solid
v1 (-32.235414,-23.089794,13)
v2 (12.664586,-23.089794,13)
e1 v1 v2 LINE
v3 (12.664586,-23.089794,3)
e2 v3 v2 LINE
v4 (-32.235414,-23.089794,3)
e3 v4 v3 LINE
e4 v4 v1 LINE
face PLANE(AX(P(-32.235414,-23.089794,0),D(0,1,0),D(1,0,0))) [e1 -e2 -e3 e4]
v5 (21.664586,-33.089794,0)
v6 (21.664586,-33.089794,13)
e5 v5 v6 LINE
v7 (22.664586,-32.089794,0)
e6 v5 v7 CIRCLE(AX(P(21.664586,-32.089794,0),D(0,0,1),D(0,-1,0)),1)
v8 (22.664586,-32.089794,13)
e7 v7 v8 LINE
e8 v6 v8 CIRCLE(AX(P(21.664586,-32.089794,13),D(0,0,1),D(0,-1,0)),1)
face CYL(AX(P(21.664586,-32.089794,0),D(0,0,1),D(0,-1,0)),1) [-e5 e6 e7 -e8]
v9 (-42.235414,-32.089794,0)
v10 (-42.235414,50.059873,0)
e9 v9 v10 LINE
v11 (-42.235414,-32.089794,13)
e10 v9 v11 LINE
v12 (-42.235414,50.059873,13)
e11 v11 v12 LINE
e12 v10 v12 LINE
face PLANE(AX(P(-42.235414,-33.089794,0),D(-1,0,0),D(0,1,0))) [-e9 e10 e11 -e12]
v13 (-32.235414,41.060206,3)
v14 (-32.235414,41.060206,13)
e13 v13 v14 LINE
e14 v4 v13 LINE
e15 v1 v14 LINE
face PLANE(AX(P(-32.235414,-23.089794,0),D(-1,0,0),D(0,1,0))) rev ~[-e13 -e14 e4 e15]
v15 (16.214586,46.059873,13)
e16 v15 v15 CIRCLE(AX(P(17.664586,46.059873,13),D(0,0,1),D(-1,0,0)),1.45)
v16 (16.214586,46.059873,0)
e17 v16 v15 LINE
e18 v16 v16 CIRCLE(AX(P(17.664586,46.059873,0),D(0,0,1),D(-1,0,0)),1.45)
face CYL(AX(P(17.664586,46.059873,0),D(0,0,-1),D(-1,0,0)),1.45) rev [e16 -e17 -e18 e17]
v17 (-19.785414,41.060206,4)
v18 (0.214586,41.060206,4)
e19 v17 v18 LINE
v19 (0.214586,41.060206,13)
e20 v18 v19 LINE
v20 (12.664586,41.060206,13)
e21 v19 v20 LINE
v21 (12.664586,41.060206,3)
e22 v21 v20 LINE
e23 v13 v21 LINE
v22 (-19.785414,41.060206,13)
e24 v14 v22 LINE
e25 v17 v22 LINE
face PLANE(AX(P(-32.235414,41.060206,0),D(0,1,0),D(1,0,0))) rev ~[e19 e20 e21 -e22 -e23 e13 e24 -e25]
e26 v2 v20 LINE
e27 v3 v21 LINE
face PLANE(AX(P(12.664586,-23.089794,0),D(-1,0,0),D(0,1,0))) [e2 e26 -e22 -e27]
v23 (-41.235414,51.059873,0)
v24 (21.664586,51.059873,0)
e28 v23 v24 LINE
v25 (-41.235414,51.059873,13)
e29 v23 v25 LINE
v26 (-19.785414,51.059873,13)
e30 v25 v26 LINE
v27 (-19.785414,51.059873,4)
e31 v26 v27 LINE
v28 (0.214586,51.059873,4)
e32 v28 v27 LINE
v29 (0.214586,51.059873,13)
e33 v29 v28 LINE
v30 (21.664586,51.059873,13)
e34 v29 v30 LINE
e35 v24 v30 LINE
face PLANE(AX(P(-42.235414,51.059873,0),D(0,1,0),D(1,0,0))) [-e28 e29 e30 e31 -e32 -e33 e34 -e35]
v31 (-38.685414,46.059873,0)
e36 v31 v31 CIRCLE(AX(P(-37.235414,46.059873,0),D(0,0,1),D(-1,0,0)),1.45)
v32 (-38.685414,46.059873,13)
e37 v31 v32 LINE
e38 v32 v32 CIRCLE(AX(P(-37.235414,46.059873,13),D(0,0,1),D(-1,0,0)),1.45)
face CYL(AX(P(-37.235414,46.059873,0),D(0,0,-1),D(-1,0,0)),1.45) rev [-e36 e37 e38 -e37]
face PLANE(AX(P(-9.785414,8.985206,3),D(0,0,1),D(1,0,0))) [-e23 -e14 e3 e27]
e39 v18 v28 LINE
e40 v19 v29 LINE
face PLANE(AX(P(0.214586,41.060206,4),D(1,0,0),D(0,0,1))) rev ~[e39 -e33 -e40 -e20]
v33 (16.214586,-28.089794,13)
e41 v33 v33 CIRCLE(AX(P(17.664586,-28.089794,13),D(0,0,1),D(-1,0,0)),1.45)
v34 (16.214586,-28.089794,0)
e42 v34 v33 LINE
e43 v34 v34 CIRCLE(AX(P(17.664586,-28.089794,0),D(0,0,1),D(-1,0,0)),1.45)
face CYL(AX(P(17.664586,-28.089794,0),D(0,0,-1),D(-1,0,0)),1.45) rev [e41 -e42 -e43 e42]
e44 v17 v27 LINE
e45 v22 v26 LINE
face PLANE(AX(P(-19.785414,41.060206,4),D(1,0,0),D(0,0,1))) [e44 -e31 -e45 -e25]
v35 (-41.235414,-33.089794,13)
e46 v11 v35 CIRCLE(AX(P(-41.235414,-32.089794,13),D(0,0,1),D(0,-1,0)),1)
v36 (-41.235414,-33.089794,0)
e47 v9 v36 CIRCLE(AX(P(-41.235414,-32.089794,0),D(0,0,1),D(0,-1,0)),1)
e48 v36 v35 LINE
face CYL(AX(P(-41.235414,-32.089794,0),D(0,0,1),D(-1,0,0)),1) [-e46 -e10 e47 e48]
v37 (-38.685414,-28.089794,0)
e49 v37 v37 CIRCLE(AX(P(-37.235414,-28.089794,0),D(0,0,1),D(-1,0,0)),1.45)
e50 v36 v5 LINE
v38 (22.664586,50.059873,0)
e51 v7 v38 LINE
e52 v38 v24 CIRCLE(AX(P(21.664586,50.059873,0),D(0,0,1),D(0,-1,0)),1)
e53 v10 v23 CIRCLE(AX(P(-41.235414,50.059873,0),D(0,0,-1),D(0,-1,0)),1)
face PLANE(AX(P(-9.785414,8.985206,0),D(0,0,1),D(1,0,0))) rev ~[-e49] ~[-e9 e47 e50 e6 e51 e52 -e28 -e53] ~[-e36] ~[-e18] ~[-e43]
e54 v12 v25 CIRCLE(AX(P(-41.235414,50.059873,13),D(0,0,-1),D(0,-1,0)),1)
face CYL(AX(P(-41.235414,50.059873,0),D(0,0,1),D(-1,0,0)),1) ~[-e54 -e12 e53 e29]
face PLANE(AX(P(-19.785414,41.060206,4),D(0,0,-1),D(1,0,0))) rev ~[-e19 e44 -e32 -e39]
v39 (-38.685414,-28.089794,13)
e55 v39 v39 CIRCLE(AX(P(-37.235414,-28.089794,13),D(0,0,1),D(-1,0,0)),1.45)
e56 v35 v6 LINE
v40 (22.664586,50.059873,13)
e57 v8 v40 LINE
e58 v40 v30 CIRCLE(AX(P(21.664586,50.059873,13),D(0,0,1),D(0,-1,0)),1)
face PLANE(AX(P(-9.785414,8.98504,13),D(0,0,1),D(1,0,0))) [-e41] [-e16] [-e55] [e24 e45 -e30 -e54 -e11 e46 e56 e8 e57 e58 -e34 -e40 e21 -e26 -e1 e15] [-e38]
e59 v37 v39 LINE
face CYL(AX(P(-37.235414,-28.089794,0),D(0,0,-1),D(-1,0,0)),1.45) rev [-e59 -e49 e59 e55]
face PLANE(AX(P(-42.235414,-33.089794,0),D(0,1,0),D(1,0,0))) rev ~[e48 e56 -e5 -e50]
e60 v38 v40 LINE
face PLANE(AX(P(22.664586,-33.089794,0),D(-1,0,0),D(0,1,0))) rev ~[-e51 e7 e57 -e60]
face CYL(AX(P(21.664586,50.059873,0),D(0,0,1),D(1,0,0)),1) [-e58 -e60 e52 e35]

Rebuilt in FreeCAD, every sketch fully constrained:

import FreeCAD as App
import Part
import Sketcher

V = App.Vector


def edges_at(feature, points):
    """Names of the edges that pass closest to the given points."""
    edges = feature.Shape.Edges
    near = lambda p: min(range(len(edges)), key=lambda i: edges[i].distToShape(Part.Vertex(*p))[0])
    return sorted({f"Edge{near(p) + 1}" for p in points})


def add_polygon(sketch, points):
    """Adds a closed chain of lines whose ends are joined by coincident constraints."""
    first, n = sketch.GeometryCount, len(points)
    for a, b in zip(points, points[1:] + points[:1]):
        sketch.addGeometry(Part.LineSegment(App.Vector(*a, 0), App.Vector(*b, 0)), False)
    for i in range(n):
        sketch.addConstraint(Sketcher.Constraint("Coincident", first + i, 2, first + (i + 1) % n, 1))

doc = App.newDocument("Part")
body = doc.addObject("PartDesign::Body", "Body")

sketch1 = body.newObject("Sketcher::SketchObject", "Sketch")
sketch1.AttachmentSupport = (doc.getObject("XY_Plane"), [""])
sketch1.MapMode = "FlatFace"
add_polygon(sketch1, [(-42.2, 51.1), (-42.2, -33.1), (22.7, -33.1), (22.7, 51.1)])
sketch1.addGeometry(Part.Circle(V(-37.2, -28.1, 0), V(0, 0, 1), 1.4), False)
sketch1.addGeometry(Part.Circle(V(17.7, -28.1, 0), V(0, 0, 1), 1.4), False)
add_polygon(sketch1, [(12.7, -23.1), (-32.2, -23.1), (-32.2, 41.1), (12.7, 41.1)])
sketch1.addGeometry(Part.Circle(V(-37.2, 46.1, 0), V(0, 0, 1), 1.4), False)
sketch1.addGeometry(Part.Circle(V(17.7, 46.1, 0), V(0, 0, 1), 1.4), False)
sketch1.addConstraint([
    Sketcher.Constraint("Vertical", 0),
    Sketcher.Constraint("Horizontal", 1),
    Sketcher.Constraint("Vertical", 2),
    Sketcher.Constraint("Horizontal", 3),
    Sketcher.Constraint("Horizontal", 6),
    Sketcher.Constraint("Vertical", 7),
    Sketcher.Constraint("Horizontal", 8),
    Sketcher.Constraint("Vertical", 9),
    Sketcher.Constraint("Equal", 4, 5),
    Sketcher.Constraint("Equal", 5, 10),
    Sketcher.Constraint("Equal", 10, 11),
    Sketcher.Constraint("Horizontal", 4, 3, 5, 3),
    Sketcher.Constraint("Horizontal", 10, 3, 11, 3),
    Sketcher.Constraint("Vertical", 4, 3, 10, 3),
    Sketcher.Constraint("Vertical", 5, 3, 11, 3),
    Sketcher.Constraint("Diameter", 4, 2.9),
    Sketcher.Constraint("DistanceX", 1, 1, 1, 2, 64.9),
    Sketcher.Constraint("DistanceX", 6, 2, 6, 1, 44.9),
    Sketcher.Constraint("DistanceX", 0, 2, 4, 3, 5.0),
    Sketcher.Constraint("DistanceY", 0, 2, 4, 3, 5.0),
    Sketcher.Constraint("DistanceX", 5, 3, 1, 2, 5.0),
    Sketcher.Constraint("DistanceY", 11, 3, 2, 2, 5.0),
    Sketcher.Constraint("DistanceX", 4, 3, 6, 2, 5.0),
    Sketcher.Constraint("DistanceY", 4, 3, 6, 2, 5.0),
    Sketcher.Constraint("DistanceY", 7, 1, 7, 2, 64.15),
    Sketcher.Constraint("DistanceY", 0, 2, 0, 1, 84.149666),
    Sketcher.Constraint("DistanceX", 4, 3, -1, 1, 37.235414),
    Sketcher.Constraint("DistanceY", 4, 3, -1, 1, 28.089794),
])
pad1 = body.newObject("PartDesign::Pad", "Pad")
pad1.Profile = sketch1
pad1.Length = 13

sketch2 = body.newObject("Sketcher::SketchObject", "Sketch001")
sketch2.AttachmentSupport = (doc.getObject("XY_Plane"), [""])
sketch2.MapMode = "FlatFace"
add_polygon(sketch2, [(-32, 41), (-32, -23), (13, -23), (13, 41)])
sketch2.addConstraint([
    Sketcher.Constraint("Vertical", 0),
    Sketcher.Constraint("Horizontal", 1),
    Sketcher.Constraint("Vertical", 2),
    Sketcher.Constraint("Horizontal", 3),
    Sketcher.Constraint("DistanceX", 1, 1, 1, 2, 44.9),
    Sketcher.Constraint("DistanceY", 0, 2, 0, 1, 64.15),
    Sketcher.Constraint("DistanceX", 0, 2, -1, 1, 32.235414),
    Sketcher.Constraint("DistanceY", 0, 2, -1, 1, 23.089794),
])
pad2 = body.newObject("PartDesign::Pad", "Pad001")
pad2.Profile = sketch2
pad2.Length = 3

sketch3 = body.newObject("Sketcher::SketchObject", "Sketch002")
sketch3.AttachmentSupport = (doc.getObject("XZ_Plane"), [""])
sketch3.MapMode = "FlatFace"
sketch3.AttachmentOffset = App.Placement(V(0, 0, -41.060206), App.Rotation())
add_polygon(sketch3, [(-20, 13), (-20, 4), (0, 4), (0, 13)])
sketch3.addConstraint([
    Sketcher.Constraint("Vertical", 0),
    Sketcher.Constraint("Horizontal", 1),
    Sketcher.Constraint("Vertical", 2),
    Sketcher.Constraint("Horizontal", 3),
    Sketcher.Constraint("DistanceX", 1, 1, 1, 2, 20.0),
    Sketcher.Constraint("DistanceY", 0, 2, 0, 1, 9.0),
    Sketcher.Constraint("DistanceY", -1, 1, 0, 2, 4.0),
    Sketcher.Constraint("DistanceX", 0, 2, -1, 1, 19.785414),
])
pocket1 = body.newObject("PartDesign::Pocket", "Pocket")
pocket1.Profile = sketch3
pocket1.Length = 10
doc.recompute()

fillet = body.newObject("PartDesign::Fillet", "Fillet")
fillet.Base = (pocket1, edges_at(pocket1, [(-42.235, 51.06, 6.5)]))
fillet.Radius = 1
doc.recompute()

fillet2 = body.newObject("PartDesign::Fillet", "Fillet001")
fillet2.Base = (fillet, edges_at(fillet, [(-42.235, -33.09, 6.5)]))
fillet2.Radius = 1
doc.recompute()

fillet3 = body.newObject("PartDesign::Fillet", "Fillet002")
fillet3.Base = (fillet2, edges_at(fillet2, [(22.665, -33.09, 6.5)]))
fillet3.Radius = 1
doc.recompute()

fillet4 = body.newObject("PartDesign::Fillet", "Fillet003")
fillet4.Base = (fillet3, edges_at(fillet3, [(22.665, 51.06, 6.5)]))
fillet4.Radius = 1

doc.recompute()
